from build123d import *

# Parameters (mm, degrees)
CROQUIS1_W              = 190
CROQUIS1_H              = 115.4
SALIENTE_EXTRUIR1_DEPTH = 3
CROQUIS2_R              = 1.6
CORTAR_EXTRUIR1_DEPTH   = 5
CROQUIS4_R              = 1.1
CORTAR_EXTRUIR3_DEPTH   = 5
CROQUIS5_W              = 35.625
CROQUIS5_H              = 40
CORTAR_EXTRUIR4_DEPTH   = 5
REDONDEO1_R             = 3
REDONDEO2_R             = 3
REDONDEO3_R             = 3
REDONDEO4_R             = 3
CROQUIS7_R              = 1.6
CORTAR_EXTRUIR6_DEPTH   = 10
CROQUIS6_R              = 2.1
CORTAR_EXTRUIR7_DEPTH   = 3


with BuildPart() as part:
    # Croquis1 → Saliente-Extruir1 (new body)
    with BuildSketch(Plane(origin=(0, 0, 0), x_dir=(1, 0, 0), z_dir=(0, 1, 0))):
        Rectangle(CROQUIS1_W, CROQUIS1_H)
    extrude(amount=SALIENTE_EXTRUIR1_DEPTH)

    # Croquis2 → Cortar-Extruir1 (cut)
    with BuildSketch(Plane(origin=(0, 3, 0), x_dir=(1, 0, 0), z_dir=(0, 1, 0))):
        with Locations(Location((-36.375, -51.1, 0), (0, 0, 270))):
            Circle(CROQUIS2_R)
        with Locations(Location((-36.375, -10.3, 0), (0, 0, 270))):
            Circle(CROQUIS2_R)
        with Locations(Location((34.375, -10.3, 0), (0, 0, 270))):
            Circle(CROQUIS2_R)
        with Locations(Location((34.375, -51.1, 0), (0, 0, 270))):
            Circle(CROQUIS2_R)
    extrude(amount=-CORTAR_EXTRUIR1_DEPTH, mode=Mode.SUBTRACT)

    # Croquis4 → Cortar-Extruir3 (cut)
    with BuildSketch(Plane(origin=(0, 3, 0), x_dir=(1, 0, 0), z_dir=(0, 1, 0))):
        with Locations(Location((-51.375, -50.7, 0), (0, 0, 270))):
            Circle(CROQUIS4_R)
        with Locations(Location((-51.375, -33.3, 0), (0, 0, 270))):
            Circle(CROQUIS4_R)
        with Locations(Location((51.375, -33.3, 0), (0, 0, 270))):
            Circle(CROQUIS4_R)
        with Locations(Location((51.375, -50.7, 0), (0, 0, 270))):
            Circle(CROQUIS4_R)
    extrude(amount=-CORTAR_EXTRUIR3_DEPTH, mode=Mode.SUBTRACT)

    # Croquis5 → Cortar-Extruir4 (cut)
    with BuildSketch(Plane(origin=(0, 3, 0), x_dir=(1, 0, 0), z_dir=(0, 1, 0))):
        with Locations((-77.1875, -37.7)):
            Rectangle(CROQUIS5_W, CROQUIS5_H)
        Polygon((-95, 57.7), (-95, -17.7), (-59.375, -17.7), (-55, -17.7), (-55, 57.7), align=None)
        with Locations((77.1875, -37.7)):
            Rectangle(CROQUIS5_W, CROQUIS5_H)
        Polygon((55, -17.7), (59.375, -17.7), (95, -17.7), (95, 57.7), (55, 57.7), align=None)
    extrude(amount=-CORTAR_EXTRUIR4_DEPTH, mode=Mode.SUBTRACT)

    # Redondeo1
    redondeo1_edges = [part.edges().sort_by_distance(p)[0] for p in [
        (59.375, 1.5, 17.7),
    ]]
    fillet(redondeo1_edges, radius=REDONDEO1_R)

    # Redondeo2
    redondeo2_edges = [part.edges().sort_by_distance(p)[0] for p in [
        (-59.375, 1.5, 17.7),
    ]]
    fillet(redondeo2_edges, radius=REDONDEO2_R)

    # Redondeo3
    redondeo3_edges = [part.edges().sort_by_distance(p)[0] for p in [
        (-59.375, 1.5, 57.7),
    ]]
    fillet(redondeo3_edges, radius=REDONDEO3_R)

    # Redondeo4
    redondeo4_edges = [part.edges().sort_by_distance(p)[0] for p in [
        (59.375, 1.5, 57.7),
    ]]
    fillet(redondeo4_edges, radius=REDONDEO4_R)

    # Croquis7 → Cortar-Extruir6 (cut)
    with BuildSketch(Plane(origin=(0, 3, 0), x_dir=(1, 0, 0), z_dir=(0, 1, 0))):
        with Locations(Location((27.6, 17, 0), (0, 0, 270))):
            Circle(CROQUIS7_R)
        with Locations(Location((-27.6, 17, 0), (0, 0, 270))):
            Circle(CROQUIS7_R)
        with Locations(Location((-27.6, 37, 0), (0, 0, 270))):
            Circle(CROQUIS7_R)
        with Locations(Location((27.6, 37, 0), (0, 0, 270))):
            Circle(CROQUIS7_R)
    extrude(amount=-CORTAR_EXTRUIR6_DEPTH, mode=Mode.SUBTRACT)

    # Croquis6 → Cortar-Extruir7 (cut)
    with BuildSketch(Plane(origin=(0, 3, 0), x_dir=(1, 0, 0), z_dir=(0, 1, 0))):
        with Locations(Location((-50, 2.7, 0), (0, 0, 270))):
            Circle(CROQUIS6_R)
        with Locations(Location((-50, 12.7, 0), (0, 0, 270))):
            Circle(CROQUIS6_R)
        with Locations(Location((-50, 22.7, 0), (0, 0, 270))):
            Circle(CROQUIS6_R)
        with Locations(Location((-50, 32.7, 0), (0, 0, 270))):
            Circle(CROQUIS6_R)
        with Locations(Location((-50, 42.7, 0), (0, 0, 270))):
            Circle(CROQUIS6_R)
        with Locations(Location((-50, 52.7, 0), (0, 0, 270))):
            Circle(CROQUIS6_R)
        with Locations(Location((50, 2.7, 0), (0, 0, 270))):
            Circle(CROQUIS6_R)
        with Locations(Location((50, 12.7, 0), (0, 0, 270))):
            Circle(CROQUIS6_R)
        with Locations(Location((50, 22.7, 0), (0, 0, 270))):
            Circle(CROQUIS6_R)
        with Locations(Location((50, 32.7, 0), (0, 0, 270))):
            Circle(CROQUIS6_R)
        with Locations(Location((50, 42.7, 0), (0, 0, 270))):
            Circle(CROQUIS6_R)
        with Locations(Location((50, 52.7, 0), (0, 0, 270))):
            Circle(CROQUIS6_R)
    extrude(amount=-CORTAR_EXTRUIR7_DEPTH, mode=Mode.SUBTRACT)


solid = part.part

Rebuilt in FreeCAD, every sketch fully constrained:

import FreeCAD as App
import Part
import Sketcher
Q = App.Units.Quantity


def edges_at(feature, points):
    """Names of the edges that pass closest to the given points."""
    edges = feature.Shape.Edges
    near = lambda p: min(range(len(edges)), key=lambda i: edges[i].distToShape(Part.Vertex(*p))[0])
    return sorted({f"Edge{near(p) + 1}" for p in points})

doc = App.newDocument("Part")
body = doc.addObject("PartDesign::Body", "Body")

sketch1 = body.newObject("Sketcher::SketchObject", "Sketch")
sketch1.AttachmentSupport = (doc.getObject("XZ_Plane"), [""])
sketch1.MapMode = "FlatFace"
sketch1.addGeometry([
    Part.LineSegment(App.Vector(-95, -58, 0), App.Vector(-95, 58, 0)),
    Part.LineSegment(App.Vector(-95, 58, 0), App.Vector(95, 58, 0)),
    Part.LineSegment(App.Vector(95, 58, 0), App.Vector(95, -58, 0)),
    Part.LineSegment(App.Vector(95, -58, 0), App.Vector(-95, -58, 0)),
], False)
sketch1.addConstraint([
    Sketcher.Constraint("Coincident", 0, 2, 1, 1),
    Sketcher.Constraint("Coincident", 1, 2, 2, 1),
    Sketcher.Constraint("Coincident", 2, 2, 3, 1),
    Sketcher.Constraint("Coincident", 3, 2, 0, 1),
    Sketcher.Constraint("Vertical", 0),
    Sketcher.Constraint("Horizontal", 1),
    Sketcher.Constraint("Vertical", 2),
    Sketcher.Constraint("Horizontal", 3),
    Sketcher.Constraint("Symmetric", 0, 2, 2, 2, -1, 1),
    Sketcher.Constraint("DistanceX", 1, 1, 1, 2, Q("190 mm")),
    Sketcher.Constraint("DistanceY", 0, 1, 0, 2, Q("115.4 mm")),
])
pad1 = body.newObject("PartDesign::Pad", "Pad")
pad1.Profile = sketch1
pad1.Length = 3
pad1.Reversed = True

sketch2 = body.newObject("Sketcher::SketchObject", "Sketch001")
sketch2.AttachmentSupport = (doc.getObject("XZ_Plane"), [""])
sketch2.MapMode = "FlatFace"
sketch2.AttachmentOffset = App.Placement(App.Vector(0, 0, -3), App.Rotation())
sketch2.addGeometry([
    Part.Circle(App.Vector(-36.4, 51.1, 0), App.Vector(0, 0, 1), 1.6),
    Part.Circle(App.Vector(-36.4, 10.3, 0), App.Vector(0, 0, 1), 1.6),
    Part.Circle(App.Vector(34.4, 10.3, 0), App.Vector(0, 0, 1), 1.6),
    Part.Circle(App.Vector(34.4, 51.1, 0), App.Vector(0, 0, 1), 1.6),
], False)
sketch2.addConstraint([
    Sketcher.Constraint("Equal", 0, 1),
    Sketcher.Constraint("Equal", 1, 2),
    Sketcher.Constraint("Equal", 2, 3),
    Sketcher.Constraint("Horizontal", 1, 3, 2, 3),
    Sketcher.Constraint("Horizontal", 0, 3, 3, 3),
    Sketcher.Constraint("Vertical", 0, 3, 1, 3),
    Sketcher.Constraint("Vertical", 2, 3, 3, 3),
    Sketcher.Constraint("Diameter", 0, Q("3.2 mm")),
    Sketcher.Constraint("DistanceY", -1, 1, 0, 3, Q("51.1 mm")),
    Sketcher.Constraint("DistanceY", -1, 1, 1, 3, Q("10.3 mm")),
    Sketcher.Constraint("DistanceX", 1, 3, 2, 3, Q("70.75 mm")),
    Sketcher.Constraint("DistanceX", 0, 3, -1, 1, Q("36.375 mm")),
])
pocket1 = body.newObject("PartDesign::Pocket", "Pocket")
pocket1.Profile = sketch2
pocket1.Length = 5
pocket1.Reversed = True

sketch3 = body.newObject("Sketcher::SketchObject", "Sketch002")
sketch3.AttachmentSupport = (doc.getObject("XZ_Plane"), [""])
sketch3.MapMode = "FlatFace"
sketch3.AttachmentOffset = App.Placement(App.Vector(0, 0, -3), App.Rotation())
sketch3.addGeometry([
    Part.Circle(App.Vector(-51.4, 50.7, 0), App.Vector(0, 0, 1), 1.1),
    Part.Circle(App.Vector(-51.4, 33.3, 0), App.Vector(0, 0, 1), 1.1),
    Part.Circle(App.Vector(51.4, 33.3, 0), App.Vector(0, 0, 1), 1.1),
    Part.Circle(App.Vector(51.4, 50.7, 0), App.Vector(0, 0, 1), 1.1),
], False)
sketch3.addConstraint([
    Sketcher.Constraint("Equal", 0, 1),
    Sketcher.Constraint("Equal", 1, 2),
    Sketcher.Constraint("Equal", 2, 3),
    Sketcher.Constraint("Symmetric", 1, 3, 2, 3, -2),
    Sketcher.Constraint("Symmetric", 0, 3, 3, 3, -2),
    Sketcher.Constraint("Vertical", 0, 3, 1, 3),
    Sketcher.Constraint("Diameter", 0, Q("2.2 mm")),
    Sketcher.Constraint("DistanceY", -1, 1, 0, 3, Q("50.7 mm")),
    Sketcher.Constraint("DistanceY", -1, 1, 1, 3, Q("33.3 mm")),
    Sketcher.Constraint("DistanceX", 1, 3, 2, 3, Q("102.75 mm")),
])
pocket2 = body.newObject("PartDesign::Pocket", "Pocket001")
pocket2.Profile = sketch3
pocket2.Length = 5
pocket2.Reversed = True

sketch4 = body.newObject("Sketcher::SketchObject", "Sketch003")
sketch4.AttachmentSupport = (doc.getObject("XZ_Plane"), [""])
sketch4.MapMode = "FlatFace"
sketch4.AttachmentOffset = App.Placement(App.Vector(0, 0, -3), App.Rotation())
sketch4.addGeometry([
    Part.LineSegment(App.Vector(-95, 57.7, 0), App.Vector(-59.4, 57.7, 0)),
    Part.LineSegment(App.Vector(-59.4, 57.7, 0), App.Vector(-59.4, 17.7, 0)),
    Part.LineSegment(App.Vector(-59.4, 17.7, 0), App.Vector(-55, 17.7, 0)),
    Part.LineSegment(App.Vector(-55, 17.7, 0), App.Vector(-55, -57.7, 0)),
    Part.LineSegment(App.Vector(-55, -57.7, 0), App.Vector(-95, -57.7, 0)),
    Part.LineSegment(App.Vector(-95, -57.7, 0), App.Vector(-95, 57.7, 0)),
    Part.LineSegment(App.Vector(59.4, 17.7, 0), App.Vector(59.4, 57.7, 0)),
    Part.LineSegment(App.Vector(59.4, 57.7, 0), App.Vector(95, 57.7, 0)),
    Part.LineSegment(App.Vector(95, 57.7, 0), App.Vector(95, -57.7, 0)),
    Part.LineSegment(App.Vector(95, -57.7, 0), App.Vector(55, -57.7, 0)),
    Part.LineSegment(App.Vector(55, -57.7, 0), App.Vector(55, 17.7, 0)),
    Part.LineSegment(App.Vector(55, 17.7, 0), App.Vector(59.4, 17.7, 0)),
], False)
sketch4.addConstraint([
    Sketcher.Constraint("Coincident", 0, 2, 1, 1),
    Sketcher.Constraint("Coincident", 1, 2, 2, 1),
    Sketcher.Constraint("Coincident", 2, 2, 3, 1),
    Sketcher.Constraint("Coincident", 3, 2, 4, 1),
    Sketcher.Constraint("Coincident", 4, 2, 5, 1),
    Sketcher.Constraint("Coincident", 5, 2, 0, 1),
    Sketcher.Constraint("Coincident", 6, 2, 7, 1),
    Sketcher.Constraint("Coincident", 7, 2, 8, 1),
    Sketcher.Constraint("Coincident", 8, 2, 9, 1),
    Sketcher.Constraint("Coincident", 9, 2, 10, 1),
    Sketcher.Constraint("Coincident", 10, 2, 11, 1),
    Sketcher.Constraint("Coincident", 11, 2, 6, 1),
    Sketcher.Constraint("Horizontal", 0),
    Sketcher.Constraint("Vertical", 1),
    Sketcher.Constraint("Horizontal", 2),
    Sketcher.Constraint("Vertical", 3),
    Sketcher.Constraint("Horizontal", 4),
    Sketcher.Constraint("Vertical", 5),
    Sketcher.Constraint("Vertical", 6),
    Sketcher.Constraint("Horizontal", 7),
    Sketcher.Constraint("Vertical", 8),
    Sketcher.Constraint("Horizontal", 9),
    Sketcher.Constraint("Vertical", 10),
    Sketcher.Constraint("Horizontal", 11),
    Sketcher.Constraint("Symmetric", 4, 2, 7, 2, -1, 1),
    Sketcher.Constraint("Symmetric", 0, 2, 6, 2, -2),
    Sketcher.Constraint("Symmetric", 3, 2, 9, 2, -2),
    Sketcher.Constraint("Horizontal", 2, 2, 10, 2),
    Sketcher.Constraint("Equal", 9, 1),
    Sketcher.Constraint("DistanceX", 4, 2, 4, 1, Q("40 mm")),
    Sketcher.Constraint("DistanceY", 3, 2, 3, 1, Q("75.4 mm")),
    Sketcher.Constraint("DistanceX", 2, 2, -1, 1, Q("55 mm")),
    Sketcher.Constraint("DistanceX", 0, 1, 0, 2, Q("35.625 mm")),
])
pocket3 = body.newObject("PartDesign::Pocket", "Pocket002")
pocket3.Profile = sketch4
pocket3.Length = 5
pocket3.Reversed = True
doc.recompute()

fillet = body.newObject("PartDesign::Fillet", "Fillet")
fillet.Base = (pocket3, edges_at(pocket3, [(59.375, 1.5, 17.7)]))
fillet.Radius = 3
doc.recompute()

fillet2 = body.newObject("PartDesign::Fillet", "Fillet001")
fillet2.Base = (fillet, edges_at(fillet, [(-59.375, 1.5, 17.7)]))
fillet2.Radius = 3
doc.recompute()

fillet3 = body.newObject("PartDesign::Fillet", "Fillet002")
fillet3.Base = (fillet2, edges_at(fillet2, [(-59.375, 1.5, 57.7)]))
fillet3.Radius = 3
doc.recompute()

fillet4 = body.newObject("PartDesign::Fillet", "Fillet003")
fillet4.Base = (fillet3, edges_at(fillet3, [(59.375, 1.5, 57.7)]))
fillet4.Radius = 3

sketch5 = body.newObject("Sketcher::SketchObject", "Sketch004")
sketch5.AttachmentSupport = (doc.getObject("XZ_Plane"), [""])
sketch5.MapMode = "FlatFace"
sketch5.AttachmentOffset = App.Placement(App.Vector(0, 0, -3), App.Rotation())
sketch5.addGeometry([
    Part.Circle(App.Vector(27.6, -17, 0), App.Vector(0, 0, 1), 1.6),
    Part.Circle(App.Vector(-27.6, -17, 0), App.Vector(0, 0, 1), 1.6),
    Part.Circle(App.Vector(-27.6, -37, 0), App.Vector(0, 0, 1), 1.6),
    Part.Circle(App.Vector(27.6, -37, 0), App.Vector(0, 0, 1), 1.6),
], False)
sketch5.addConstraint([
    Sketcher.Constraint("Equal", 0, 1),
    Sketcher.Constraint("Equal", 1, 2),
    Sketcher.Constraint("Equal", 2, 3),
    Sketcher.Constraint("Symmetric", 0, 3, 1, 3, -2),
    Sketcher.Constraint("Symmetric", 2, 3, 3, 3, -2),
    Sketcher.Constraint("Vertical", 1, 3, 2, 3),
    Sketcher.Constraint("Diameter", 0, Q("3.2 mm")),
    Sketcher.Constraint("DistanceY", 0, 3, -1, 1, Q("17 mm")),
    Sketcher.Constraint("DistanceY", 2, 3, -1, 1, Q("37 mm")),
    Sketcher.Constraint("DistanceX", -1, 1, 0, 3, Q("27.6 mm")),
])
pocket4 = body.newObject("PartDesign::Pocket", "Pocket003")
pocket4.Profile = sketch5
pocket4.Length = 10
pocket4.Reversed = True

sketch6 = body.newObject("Sketcher::SketchObject", "Sketch005")
sketch6.AttachmentSupport = (doc.getObject("XZ_Plane"), [""])
sketch6.MapMode = "FlatFace"
sketch6.AttachmentOffset = App.Placement(App.Vector(0, 0, -3), App.Rotation())
sketch6.addGeometry([
    Part.Circle(App.Vector(-50, -2.7, 0), App.Vector(0, 0, 1), 2.1),
    Part.Circle(App.Vector(-50, -12.7, 0), App.Vector(0, 0, 1), 2.1),
    Part.Circle(App.Vector(-50, -22.7, 0), App.Vector(0, 0, 1), 2.1),
    Part.Circle(App.Vector(-50, -32.7, 0), App.Vector(0, 0, 1), 2.1),
    Part.Circle(App.Vector(-50, -42.7, 0), App.Vector(0, 0, 1), 2.1),
    Part.Circle(App.Vector(-50, -52.7, 0), App.Vector(0, 0, 1), 2.1),
    Part.Circle(App.Vector(50, -2.7, 0), App.Vector(0, 0, 1), 2.1),
    Part.Circle(App.Vector(50, -12.7, 0), App.Vector(0, 0, 1), 2.1),
    Part.Circle(App.Vector(50, -22.7, 0), App.Vector(0, 0, 1), 2.1),
    Part.Circle(App.Vector(50, -32.7, 0), App.Vector(0, 0, 1), 2.1),
    Part.Circle(App.Vector(50, -42.7, 0), App.Vector(0, 0, 1), 2.1),
    Part.Circle(App.Vector(50, -52.7, 0), App.Vector(0, 0, 1), 2.1),
], False)
sketch6.addConstraint([
    Sketcher.Constraint("Equal", 0, 1),
    Sketcher.Constraint("Equal", 1, 2),
    Sketcher.Constraint("Equal", 2, 3),
    Sketcher.Constraint("Equal", 3, 4),
    Sketcher.Constraint("Equal", 4, 5),
    Sketcher.Constraint("Equal", 5, 6),
    Sketcher.Constraint("Equal", 6, 7),
    Sketcher.Constraint("Equal", 7, 8),
    Sketcher.Constraint("Equal", 8, 9),
    Sketcher.Constraint("Equal", 9, 10),
    Sketcher.Constraint("Equal", 10, 11),
    Sketcher.Constraint("Symmetric", 0, 3, 6, 3, -2),
    Sketcher.Constraint("Symmetric", 1, 3, 7, 3, -2),
    Sketcher.Constraint("Symmetric", 2, 3, 8, 3, -2),
    Sketcher.Constraint("Symmetric", 3, 3, 9, 3, -2),
    Sketcher.Constraint("Symmetric", 4, 3, 10, 3, -2),
    Sketcher.Constraint("Symmetric", 5, 3, 11, 3, -2),
    Sketcher.Constraint("Vertical", 0, 3, 1, 3),
    Sketcher.Constraint("Vertical", 1, 3, 2, 3),
    Sketcher.Constraint("Vertical", 2, 3, 3, 3),
    Sketcher.Constraint("Vertical", 3, 3, 4, 3),
    Sketcher.Constraint("Vertical", 4, 3, 5, 3),
    Sketcher.Constraint("Diameter", 0, Q("4.2 mm")),
    Sketcher.Constraint("DistanceX", 0, 3, -1, 1, Q("50 mm")),
    Sketcher.Constraint("DistanceY", 1, 3, 0, 3, Q("10 mm")),
    Sketcher.Constraint("DistanceY", 2, 3, 1, 3, Q("10 mm")),
    Sketcher.Constraint("DistanceY", 3, 3, 2, 3, Q("10 mm")),
    Sketcher.Constraint("DistanceY", 4, 3, 3, 3, Q("10 mm")),
    Sketcher.Constraint("DistanceY", 5, 3, 4, 3, Q("10 mm")),
    Sketcher.Constraint("DistanceY", 0, 3, -1, 1, Q("2.7 mm")),
])
pocket5 = body.newObject("PartDesign::Pocket", "Pocket004")
pocket5.Profile = sketch6
pocket5.Length = 3
pocket5.Reversed = True

doc.recompute()
